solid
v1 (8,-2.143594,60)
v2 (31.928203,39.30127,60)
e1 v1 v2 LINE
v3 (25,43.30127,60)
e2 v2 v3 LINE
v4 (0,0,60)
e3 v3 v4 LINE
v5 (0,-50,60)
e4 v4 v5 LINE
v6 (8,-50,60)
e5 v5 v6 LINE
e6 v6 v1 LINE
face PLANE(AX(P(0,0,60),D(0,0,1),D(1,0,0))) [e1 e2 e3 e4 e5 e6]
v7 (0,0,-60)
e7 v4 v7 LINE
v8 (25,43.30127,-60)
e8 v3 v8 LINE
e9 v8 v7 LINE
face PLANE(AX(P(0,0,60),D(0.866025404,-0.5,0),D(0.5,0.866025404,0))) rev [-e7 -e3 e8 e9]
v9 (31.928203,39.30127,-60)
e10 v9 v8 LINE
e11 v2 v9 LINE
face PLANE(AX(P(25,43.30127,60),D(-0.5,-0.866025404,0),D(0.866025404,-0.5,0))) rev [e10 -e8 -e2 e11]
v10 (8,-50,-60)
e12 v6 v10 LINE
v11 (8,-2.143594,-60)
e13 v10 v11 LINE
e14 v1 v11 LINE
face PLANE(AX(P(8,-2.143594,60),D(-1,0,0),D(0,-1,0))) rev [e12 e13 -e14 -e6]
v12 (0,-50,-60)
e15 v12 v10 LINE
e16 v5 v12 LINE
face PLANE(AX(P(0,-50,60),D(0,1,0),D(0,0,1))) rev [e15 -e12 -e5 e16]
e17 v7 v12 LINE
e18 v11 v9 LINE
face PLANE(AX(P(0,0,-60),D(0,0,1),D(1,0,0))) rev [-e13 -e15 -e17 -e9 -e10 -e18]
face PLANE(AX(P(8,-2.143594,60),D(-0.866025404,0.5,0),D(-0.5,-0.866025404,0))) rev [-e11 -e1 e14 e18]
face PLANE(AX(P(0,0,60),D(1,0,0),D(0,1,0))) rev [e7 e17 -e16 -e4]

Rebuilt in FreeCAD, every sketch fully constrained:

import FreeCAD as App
import Part
import Sketcher

V = App.Vector
Q = App.Units.Quantity


def add_polygon(sketch, points):
    """Adds a closed chain of lines whose ends are joined by coincident constraints."""
    first, n = sketch.GeometryCount, len(points)
    for a, b in zip(points, points[1:] + points[:1]):
        sketch.addGeometry(Part.LineSegment(App.Vector(*a, 0), App.Vector(*b, 0)), False)
    for i in range(n):
        sketch.addConstraint(Sketcher.Constraint("Coincident", first + i, 2, first + (i + 1) % n, 1))

doc = App.newDocument("Part")
params = doc.addObject("Spreadsheet::Sheet", "Params")
for row, (alias, value) in enumerate([
    ("sketch1_width", "8 mm"),
    ("sketch1_height", "50 mm"),
    ("sketch1_length", "50 mm"),
    ("sketch1_length2", "8 mm"),
    ("pad1_length", "120 mm"),
], start=1):
    params.set(f"A{row}", alias)
    params.set(f"B{row}", "=" + value)
    params.setAlias(f"B{row}", alias)

body = doc.addObject("PartDesign::Body", "Body")

sketch1 = body.newObject("Sketcher::SketchObject", "Sketch")
sketch1.AttachmentSupport = (doc.getObject("XY_Plane"), [""])
sketch1.MapMode = "FlatFace"
add_polygon(sketch1, [(25, 43), (0, 0), (0, -50), (8, -50), (8, -2), (32, 39)])
sketch1.addConstraint([
    Sketcher.Constraint("Vertical", 1),
    Sketcher.Constraint("Horizontal", 2),
    Sketcher.Constraint("Vertical", 3),
    Sketcher.Constraint("Coincident", 0, 2, -1, 1),
    Sketcher.Constraint("Parallel", 0, 4),
    Sketcher.Constraint("Perpendicular", 4, 5),
    Sketcher.Constraint("DistanceX", 2, 1, 2, 2, 8.0),
    Sketcher.Constraint("DistanceY", 1, 2, 1, 1, 50.0),
    Sketcher.Constraint("Angle", 0, Q("-120 deg")),
    Sketcher.Constraint("Distance", 0, 50.0),
    Sketcher.Constraint("Distance", 5, 8.0),
])
sketch1.setExpression("Constraints[12]", "Params.sketch1_width")
sketch1.setExpression("Constraints[13]", "Params.sketch1_height")
sketch1.setExpression("Constraints[15]", "Params.sketch1_length")
sketch1.setExpression("Constraints[16]", "Params.sketch1_length2")
pad1 = body.newObject("PartDesign::Pad", "Pad")
pad1.Profile = sketch1
pad1.setExpression("Length", "Params.pad1_length")
pad1.Midplane = True

doc.recompute()
